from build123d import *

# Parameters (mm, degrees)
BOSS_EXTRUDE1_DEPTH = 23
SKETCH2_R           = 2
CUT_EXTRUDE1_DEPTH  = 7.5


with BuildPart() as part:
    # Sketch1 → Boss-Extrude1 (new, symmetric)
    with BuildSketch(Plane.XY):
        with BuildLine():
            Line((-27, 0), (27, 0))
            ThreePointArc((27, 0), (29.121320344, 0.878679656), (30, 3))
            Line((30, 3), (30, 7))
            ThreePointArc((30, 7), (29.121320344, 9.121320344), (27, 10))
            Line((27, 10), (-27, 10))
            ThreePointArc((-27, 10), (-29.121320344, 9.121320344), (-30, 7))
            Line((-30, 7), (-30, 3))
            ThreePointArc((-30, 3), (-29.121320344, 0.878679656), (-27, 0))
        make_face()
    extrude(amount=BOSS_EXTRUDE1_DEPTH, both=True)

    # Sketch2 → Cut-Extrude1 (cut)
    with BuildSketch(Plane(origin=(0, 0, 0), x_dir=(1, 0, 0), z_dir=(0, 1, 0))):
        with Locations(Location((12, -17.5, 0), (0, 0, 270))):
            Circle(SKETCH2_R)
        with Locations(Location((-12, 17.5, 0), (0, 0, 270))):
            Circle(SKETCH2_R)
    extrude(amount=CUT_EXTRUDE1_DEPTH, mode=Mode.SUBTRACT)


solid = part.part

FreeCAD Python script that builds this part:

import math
import FreeCAD as App
import Part
import Sketcher
from FreeCAD import Vector
Q = App.Units.Quantity

doc = App.newDocument("Part")
body = doc.addObject("PartDesign::Body", "Body")

sketch1 = doc.addObject("Sketcher::SketchObject", "Sketch")
body.addObject(sketch1)
sketch1.AttachmentSupport = (doc.XY_Plane, [""])
sketch1.MapMode = "FlatFace"
sketch1.addGeometry([
    Part.LineSegment(Vector(-27, 0, 0), Vector(27, 0, 0)),
    Part.ArcOfCircle(Part.Circle(Vector(27, 3, 0), Vector(0, 0, 1), 3), math.radians(-90), math.radians(0)),
    Part.LineSegment(Vector(30, 3, 0), Vector(30, 7, 0)),
    Part.ArcOfCircle(Part.Circle(Vector(27, 7, 0), Vector(0, 0, 1), 3), math.radians(0), math.radians(90)),
    Part.LineSegment(Vector(27, 10, 0), Vector(-27, 10, 0)),
    Part.ArcOfCircle(Part.Circle(Vector(-27, 7, 0), Vector(0, 0, 1), 3), math.radians(90), math.radians(180)),
    Part.LineSegment(Vector(-30, 7, 0), Vector(-30, 3, 0)),
    Part.ArcOfCircle(Part.Circle(Vector(-27, 3, 0), Vector(0, 0, 1), 3), math.radians(180), math.radians(270)),
], False)
sketch1.addConstraint([
    Sketcher.Constraint("Tangent", 0, 2, 1, 1),
    Sketcher.Constraint("Tangent", 1, 2, 2, 1),
    Sketcher.Constraint("Tangent", 2, 2, 3, 1),
    Sketcher.Constraint("Tangent", 3, 2, 4, 1),
    Sketcher.Constraint("Tangent", 4, 2, 5, 1),
    Sketcher.Constraint("Tangent", 5, 2, 6, 1),
    Sketcher.Constraint("Tangent", 6, 2, 7, 1),
    Sketcher.Constraint("Tangent", 7, 2, 0, 1),
    Sketcher.Constraint("Horizontal", 0),
    Sketcher.Constraint("Vertical", 2),
    Sketcher.Constraint("Horizontal", 4),
    Sketcher.Constraint("Vertical", 6),
    Sketcher.Constraint("Equal", 1, 3),
    Sketcher.Constraint("Equal", 3, 5),
    Sketcher.Constraint("Equal", 5, 7),
    Sketcher.Constraint("Symmetric", 0, 2, 7, 2, -1, 1),
    Sketcher.Constraint("Radius", 1, Q("3 mm")),
    Sketcher.Constraint("DistanceX", 0, 1, 0, 2, Q("54 mm")),
    Sketcher.Constraint("DistanceY", 2, 1, 2, 2, Q("4 mm")),
])
pad1 = doc.addObject("PartDesign::Pad", "Pad")
body.addObject(pad1)
pad1.Profile = sketch1
pad1.Length = 46
pad1.Midplane = True

sketch2 = doc.addObject("Sketcher::SketchObject", "Sketch001")
body.addObject(sketch2)
sketch2.AttachmentSupport = (doc.XZ_Plane, [""])
sketch2.MapMode = "FlatFace"
sketch2.addGeometry([
    Part.Circle(Vector(12, 17.5, 0), Vector(0, 0, 1), 2),
    Part.Circle(Vector(-12, -17.5, 0), Vector(0, 0, 1), 2),
], False)
sketch2.addConstraint([
    Sketcher.Constraint("Equal", 0, 1),
    Sketcher.Constraint("Symmetric", 0, 3, 1, 3, -1, 1),
    Sketcher.Constraint("Diameter", 0, Q("4 mm")),
    Sketcher.Constraint("DistanceX", -1, 1, 0, 3, Q("12 mm")),
    Sketcher.Constraint("DistanceY", 1, 3, 0, 3, Q("35 mm")),
])
pocket1 = doc.addObject("PartDesign::Pocket", "Pocket")
body.addObject(pocket1)
pocket1.Profile = sketch2
pocket1.Length = 7.5

doc.recompute()
